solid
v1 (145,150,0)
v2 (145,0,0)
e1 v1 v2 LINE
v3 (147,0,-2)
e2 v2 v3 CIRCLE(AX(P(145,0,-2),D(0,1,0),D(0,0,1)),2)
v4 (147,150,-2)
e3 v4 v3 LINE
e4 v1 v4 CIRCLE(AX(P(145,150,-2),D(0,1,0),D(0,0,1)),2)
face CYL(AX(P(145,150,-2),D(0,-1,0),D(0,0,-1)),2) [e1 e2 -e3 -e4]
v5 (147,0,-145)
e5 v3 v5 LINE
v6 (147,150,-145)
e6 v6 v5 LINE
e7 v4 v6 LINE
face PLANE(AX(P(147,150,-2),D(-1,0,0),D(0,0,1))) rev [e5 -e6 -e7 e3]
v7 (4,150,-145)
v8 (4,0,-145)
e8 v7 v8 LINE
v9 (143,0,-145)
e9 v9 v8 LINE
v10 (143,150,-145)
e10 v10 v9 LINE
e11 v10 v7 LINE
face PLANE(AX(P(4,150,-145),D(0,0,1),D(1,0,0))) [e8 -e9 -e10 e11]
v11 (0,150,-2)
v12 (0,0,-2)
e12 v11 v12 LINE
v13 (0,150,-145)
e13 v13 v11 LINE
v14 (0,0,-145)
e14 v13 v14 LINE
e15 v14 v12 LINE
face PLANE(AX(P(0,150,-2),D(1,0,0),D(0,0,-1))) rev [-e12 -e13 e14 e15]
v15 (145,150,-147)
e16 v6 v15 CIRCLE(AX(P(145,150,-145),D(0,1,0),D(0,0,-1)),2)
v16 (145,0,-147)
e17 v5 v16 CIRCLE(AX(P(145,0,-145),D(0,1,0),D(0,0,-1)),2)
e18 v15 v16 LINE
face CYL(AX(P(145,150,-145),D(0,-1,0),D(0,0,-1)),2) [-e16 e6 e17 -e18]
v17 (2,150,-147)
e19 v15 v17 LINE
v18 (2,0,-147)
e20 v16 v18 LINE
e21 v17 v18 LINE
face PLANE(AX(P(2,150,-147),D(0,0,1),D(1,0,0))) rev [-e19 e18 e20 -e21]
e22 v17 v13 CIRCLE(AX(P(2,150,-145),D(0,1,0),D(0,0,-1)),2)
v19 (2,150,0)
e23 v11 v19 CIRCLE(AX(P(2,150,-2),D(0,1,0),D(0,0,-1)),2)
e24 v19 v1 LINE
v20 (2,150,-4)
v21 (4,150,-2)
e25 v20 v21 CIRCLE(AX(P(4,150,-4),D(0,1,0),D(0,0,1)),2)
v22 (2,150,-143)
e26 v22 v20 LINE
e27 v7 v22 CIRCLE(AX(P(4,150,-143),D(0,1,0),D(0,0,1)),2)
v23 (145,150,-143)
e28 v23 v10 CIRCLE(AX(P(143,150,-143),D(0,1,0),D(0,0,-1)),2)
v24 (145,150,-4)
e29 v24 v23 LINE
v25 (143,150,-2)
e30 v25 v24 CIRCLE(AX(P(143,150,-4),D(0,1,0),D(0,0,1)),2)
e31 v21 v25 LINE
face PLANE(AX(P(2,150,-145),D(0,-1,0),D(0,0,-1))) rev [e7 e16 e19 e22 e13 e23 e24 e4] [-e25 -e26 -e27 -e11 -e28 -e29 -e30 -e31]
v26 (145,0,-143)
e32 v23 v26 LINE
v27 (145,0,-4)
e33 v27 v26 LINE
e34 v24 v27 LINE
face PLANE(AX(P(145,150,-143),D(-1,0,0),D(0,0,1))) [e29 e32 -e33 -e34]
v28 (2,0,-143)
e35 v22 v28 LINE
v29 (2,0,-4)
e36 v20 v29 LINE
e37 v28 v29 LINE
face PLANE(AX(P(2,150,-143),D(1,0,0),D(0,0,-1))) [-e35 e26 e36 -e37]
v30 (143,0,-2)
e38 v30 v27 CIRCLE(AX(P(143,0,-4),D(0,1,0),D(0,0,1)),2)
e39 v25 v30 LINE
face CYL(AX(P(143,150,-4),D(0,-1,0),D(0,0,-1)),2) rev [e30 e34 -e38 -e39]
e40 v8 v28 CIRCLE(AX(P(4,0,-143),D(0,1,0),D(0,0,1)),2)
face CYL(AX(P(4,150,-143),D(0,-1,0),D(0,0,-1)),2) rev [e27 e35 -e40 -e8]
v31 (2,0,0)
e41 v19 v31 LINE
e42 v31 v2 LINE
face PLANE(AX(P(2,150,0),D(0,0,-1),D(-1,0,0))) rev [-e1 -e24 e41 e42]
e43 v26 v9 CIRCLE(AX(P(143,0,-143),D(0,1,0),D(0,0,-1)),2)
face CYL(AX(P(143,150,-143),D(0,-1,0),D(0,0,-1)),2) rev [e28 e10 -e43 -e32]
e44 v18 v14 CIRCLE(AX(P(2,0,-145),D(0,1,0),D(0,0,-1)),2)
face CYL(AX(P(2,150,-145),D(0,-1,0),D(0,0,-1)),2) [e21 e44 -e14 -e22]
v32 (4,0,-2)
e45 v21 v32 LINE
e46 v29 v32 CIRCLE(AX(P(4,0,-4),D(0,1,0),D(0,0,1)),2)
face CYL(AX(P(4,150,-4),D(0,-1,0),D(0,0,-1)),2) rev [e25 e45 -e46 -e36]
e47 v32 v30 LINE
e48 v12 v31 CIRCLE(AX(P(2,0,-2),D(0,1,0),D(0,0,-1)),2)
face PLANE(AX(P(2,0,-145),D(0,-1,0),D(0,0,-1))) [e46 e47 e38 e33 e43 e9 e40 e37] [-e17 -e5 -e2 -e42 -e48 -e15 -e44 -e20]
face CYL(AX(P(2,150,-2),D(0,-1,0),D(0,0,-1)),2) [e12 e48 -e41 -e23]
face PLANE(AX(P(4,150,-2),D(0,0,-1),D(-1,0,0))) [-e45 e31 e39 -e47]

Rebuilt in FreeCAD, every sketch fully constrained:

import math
import FreeCAD as App
import Part
import Sketcher

V = App.Vector
Q = App.Units.Quantity

doc = App.newDocument("Part")
body = doc.addObject("PartDesign::Body", "Body")

# Sketch on XZ plane
sketch1 = body.newObject("Sketcher::SketchObject", "Sketch")
sketch1.AttachmentSupport = (doc.getObject("XZ_Plane"), [""])
sketch1.MapMode = "FlatFace"
sketch1.addGeometry([
    Part.LineSegment(V(2, 0, 0), V(145, 0, 0)),  # 0
    Part.ArcOfCircle(Part.Circle(V(145, -2, 0), V(0, 0, 1), 2), math.radians(0), math.radians(90)),  # 1
    Part.LineSegment(V(147, -2, 0), V(147, -145, 0)),  # 2
    Part.ArcOfCircle(Part.Circle(V(145, -145, 0), V(0, 0, 1), 2), math.radians(-90), math.radians(0)),  # 3
    Part.LineSegment(V(145, -147, 0), V(2, -147, 0)),  # 4
    Part.ArcOfCircle(Part.Circle(V(2, -145, 0), V(0, 0, 1), 2), math.radians(-180), math.radians(-90)),  # 5
    Part.LineSegment(V(0, -145, 0), V(0, -2, 0)),  # 6
    Part.ArcOfCircle(Part.Circle(V(2, -2, 0), V(0, 0, 1), 2), math.radians(90), math.radians(180)),  # 7
    Part.ArcOfCircle(Part.Circle(V(4, -143, 0), V(0, 0, 1), 2), math.radians(-180), math.radians(-90)),  # 8
    Part.LineSegment(V(4, -145, 0), V(143, -145, 0)),  # 9
    Part.ArcOfCircle(Part.Circle(V(143, -143, 0), V(0, 0, 1), 2), math.radians(-90), math.radians(0)),  # 10
    Part.LineSegment(V(145, -143, 0), V(145, -4, 0)),  # 11
    Part.ArcOfCircle(Part.Circle(V(143, -4, 0), V(0, 0, 1), 2), math.radians(0), math.radians(90)),  # 12
    Part.LineSegment(V(143, -2, 0), V(4, -2, 0)),  # 13
    Part.ArcOfCircle(Part.Circle(V(4, -4, 0), V(0, 0, 1), 2), math.radians(90), math.radians(180)),  # 14
    Part.LineSegment(V(2, -4, 0), V(2, -143, 0)),  # 15
], False)
sketch1.addConstraint([
    Sketcher.Constraint("Tangent", 0, 2, 1, 2),
    Sketcher.Constraint("Tangent", 1, 1, 2, 1),
    Sketcher.Constraint("Tangent", 2, 2, 3, 2),
    Sketcher.Constraint("Tangent", 3, 1, 4, 1),
    Sketcher.Constraint("Tangent", 4, 2, 5, 2),
    Sketcher.Constraint("Tangent", 5, 1, 6, 1),
    Sketcher.Constraint("Tangent", 6, 2, 7, 2),
    Sketcher.Constraint("Tangent", 7, 1, 0, 1),
    Sketcher.Constraint("Tangent", 8, 2, 9, 1),
    Sketcher.Constraint("Tangent", 9, 2, 10, 1),
    Sketcher.Constraint("Tangent", 10, 2, 11, 1),
    Sketcher.Constraint("Tangent", 11, 2, 12, 1),
    Sketcher.Constraint("Tangent", 12, 2, 13, 1),
    Sketcher.Constraint("Tangent", 13, 2, 14, 1),
    Sketcher.Constraint("Tangent", 14, 2, 15, 1),
    Sketcher.Constraint("Tangent", 15, 2, 8, 1),
    Sketcher.Constraint("Horizontal", 0),
    Sketcher.Constraint("Vertical", 2),
    Sketcher.Constraint("Horizontal", 4),
    Sketcher.Constraint("Vertical", 6),
    Sketcher.Constraint("Horizontal", 9),
    Sketcher.Constraint("Vertical", 11),
    Sketcher.Constraint("Horizontal", 13),
    Sketcher.Constraint("Vertical", 15),
    Sketcher.Constraint("Equal", 1, 3),
    Sketcher.Constraint("Equal", 3, 5),
    Sketcher.Constraint("Equal", 5, 7),
    Sketcher.Constraint("Equal", 7, 8),
    Sketcher.Constraint("Equal", 8, 10),
    Sketcher.Constraint("Equal", 10, 12),
    Sketcher.Constraint("Equal", 12, 14),
    Sketcher.Constraint("PointOnObject", 0, 2, -1),
    Sketcher.Constraint("PointOnObject", 5, 1, -2),
    Sketcher.Constraint("Horizontal", 5, 1, 8, 2),
    Sketcher.Constraint("Horizontal", 6, 2, 12, 2),
    Sketcher.Constraint("Vertical", 3, 1, 10, 2),
    Sketcher.Constraint("Vertical", 7, 1, 14, 2),
    Sketcher.Constraint("Equal", 4, 2),
    Sketcher.Constraint("Radius", 1, Q("2 mm")),
    Sketcher.Constraint("DistanceX", 0, 1, 0, 2, Q("143 mm")),
])
pad1 = body.newObject("PartDesign::Pad", "Pad")
pad1.Profile = sketch1
pad1.Length = 150
pad1.Reversed = True

doc.recompute()
